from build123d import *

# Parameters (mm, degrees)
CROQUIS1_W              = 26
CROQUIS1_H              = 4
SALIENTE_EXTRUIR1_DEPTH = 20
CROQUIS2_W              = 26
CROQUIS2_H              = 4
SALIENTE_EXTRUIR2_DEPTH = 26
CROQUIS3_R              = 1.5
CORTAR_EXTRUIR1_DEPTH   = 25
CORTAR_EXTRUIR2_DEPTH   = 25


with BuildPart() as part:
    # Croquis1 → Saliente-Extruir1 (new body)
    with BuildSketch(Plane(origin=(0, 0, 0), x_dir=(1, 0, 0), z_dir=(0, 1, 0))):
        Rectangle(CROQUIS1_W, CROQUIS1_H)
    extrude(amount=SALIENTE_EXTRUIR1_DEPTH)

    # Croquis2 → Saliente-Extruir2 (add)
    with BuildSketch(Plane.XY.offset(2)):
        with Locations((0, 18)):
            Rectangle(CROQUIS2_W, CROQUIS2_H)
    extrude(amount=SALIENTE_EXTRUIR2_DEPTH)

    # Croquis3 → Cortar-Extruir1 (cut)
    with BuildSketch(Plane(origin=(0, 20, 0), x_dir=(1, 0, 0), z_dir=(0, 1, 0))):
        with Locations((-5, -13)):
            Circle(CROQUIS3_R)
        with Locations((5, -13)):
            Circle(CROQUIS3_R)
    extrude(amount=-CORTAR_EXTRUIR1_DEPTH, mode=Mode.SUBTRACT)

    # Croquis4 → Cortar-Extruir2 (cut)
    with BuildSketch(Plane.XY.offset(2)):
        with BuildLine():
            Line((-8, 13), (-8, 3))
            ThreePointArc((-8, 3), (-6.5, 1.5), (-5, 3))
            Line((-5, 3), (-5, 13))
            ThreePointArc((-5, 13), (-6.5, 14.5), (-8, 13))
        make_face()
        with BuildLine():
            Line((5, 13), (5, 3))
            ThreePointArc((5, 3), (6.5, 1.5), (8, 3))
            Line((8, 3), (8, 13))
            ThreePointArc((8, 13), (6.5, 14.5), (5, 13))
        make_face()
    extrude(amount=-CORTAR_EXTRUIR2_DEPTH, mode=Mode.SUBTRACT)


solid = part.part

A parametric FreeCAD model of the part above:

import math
import FreeCAD as App
import Part
import Sketcher
from FreeCAD import Vector
Q = App.Units.Quantity

doc = App.newDocument("Part")
body = doc.addObject("PartDesign::Body", "Body")

# Sketch on XZ plane
sketch1 = body.newObject("Sketcher::SketchObject", "Sketch")
sketch1.AttachmentSupport = (doc.getObject("XZ_Plane"), [""])
sketch1.MapMode = "FlatFace"
sketch1.addGeometry(Part.LineSegment(Vector(-13, -2, 0), Vector(-13, 2, 0)), False)
sketch1.addGeometry(Part.LineSegment(Vector(-13, 2, 0), Vector(13, 2, 0)), False)
sketch1.addGeometry(Part.LineSegment(Vector(13, 2, 0), Vector(13, -2, 0)), False)
sketch1.addGeometry(Part.LineSegment(Vector(13, -2, 0), Vector(-13, -2, 0)), False)
sketch1.addConstraint(Sketcher.Constraint("Coincident", 0, 2, 1, 1))
sketch1.addConstraint(Sketcher.Constraint("Coincident", 1, 2, 2, 1))
sketch1.addConstraint(Sketcher.Constraint("Coincident", 2, 2, 3, 1))
sketch1.addConstraint(Sketcher.Constraint("Coincident", 3, 2, 0, 1))
sketch1.addConstraint(Sketcher.Constraint("Vertical", 0))
sketch1.addConstraint(Sketcher.Constraint("Horizontal", 1))
sketch1.addConstraint(Sketcher.Constraint("Vertical", 2))
sketch1.addConstraint(Sketcher.Constraint("Horizontal", 3))
sketch1.addConstraint(Sketcher.Constraint("Symmetric", 0, 2, 2, 2, -1, 1))
sketch1.addConstraint(Sketcher.Constraint("DistanceX", 1, 1, 1, 2, Q("26 mm")))
sketch1.addConstraint(Sketcher.Constraint("DistanceY", 0, 1, 0, 2, Q("4 mm")))
pad1 = body.newObject("PartDesign::Pad", "Pad")
pad1.Profile = sketch1
pad1.Length = 20
pad1.Reversed = True

# Sketch on XY plane
sketch2 = body.newObject("Sketcher::SketchObject", "Sketch001")
sketch2.AttachmentSupport = (doc.getObject("XY_Plane"), [""])
sketch2.MapMode = "FlatFace"
sketch2.AttachmentOffset = App.Placement(Vector(0, 0, 2), App.Rotation())
sketch2.addGeometry(Part.LineSegment(Vector(-13, 20, 0), Vector(-13, 16, 0)), False)
sketch2.addGeometry(Part.LineSegment(Vector(-13, 16, 0), Vector(13, 16, 0)), False)
sketch2.addGeometry(Part.LineSegment(Vector(13, 16, 0), Vector(13, 20, 0)), False)
sketch2.addGeometry(Part.LineSegment(Vector(13, 20, 0), Vector(-13, 20, 0)), False)
sketch2.addConstraint(Sketcher.Constraint("Coincident", 0, 2, 1, 1))
sketch2.addConstraint(Sketcher.Constraint("Coincident", 1, 2, 2, 1))
sketch2.addConstraint(Sketcher.Constraint("Coincident", 2, 2, 3, 1))
sketch2.addConstraint(Sketcher.Constraint("Coincident", 3, 2, 0, 1))
sketch2.addConstraint(Sketcher.Constraint("Vertical", 0))
sketch2.addConstraint(Sketcher.Constraint("Horizontal", 1))
sketch2.addConstraint(Sketcher.Constraint("Vertical", 2))
sketch2.addConstraint(Sketcher.Constraint("Horizontal", 3))
sketch2.addConstraint(Sketcher.Constraint("DistanceX", 1, 1, 1, 2, Q("26 mm")))
sketch2.addConstraint(Sketcher.Constraint("DistanceY", 0, 2, 0, 1, Q("4 mm")))
sketch2.addConstraint(Sketcher.Constraint("DistanceX", 0, 2, -1, 1, Q("13 mm")))
sketch2.addConstraint(Sketcher.Constraint("DistanceY", -1, 1, 0, 2, Q("16 mm")))
pad2 = body.newObject("PartDesign::Pad", "Pad001")
pad2.Profile = sketch2
pad2.Length = 26

# Sketch on XZ plane
sketch3 = body.newObject("Sketcher::SketchObject", "Sketch002")
sketch3.AttachmentSupport = (doc.getObject("XZ_Plane"), [""])
sketch3.MapMode = "FlatFace"
sketch3.AttachmentOffset = App.Placement(Vector(0, 0, -20), App.Rotation())
sketch3.addGeometry(Part.Circle(Vector(-5, 13, 0), Vector(0, 0, 1), 1.5), False)
sketch3.addGeometry(Part.Circle(Vector(5, 13, 0), Vector(0, 0, 1), 1.5), False)
sketch3.addConstraint(Sketcher.Constraint("Equal", 0, 1))
sketch3.addConstraint(Sketcher.Constraint("Symmetric", 0, 3, 1, 3, -2))
sketch3.addConstraint(Sketcher.Constraint("Diameter", 0, Q("3 mm")))
sketch3.addConstraint(Sketcher.Constraint("DistanceX", 0, 3, -1, 1, Q("5 mm")))
sketch3.addConstraint(Sketcher.Constraint("DistanceY", -1, 1, 0, 3, Q("13 mm")))
pocket1 = body.newObject("PartDesign::Pocket", "Pocket")
pocket1.Profile = sketch3
pocket1.Length = 25
pocket1.Reversed = True

# Sketch on XY plane
sketch4 = body.newObject("Sketcher::SketchObject", "Sketch003")
sketch4.AttachmentSupport = (doc.getObject("XY_Plane"), [""])
sketch4.MapMode = "FlatFace"
sketch4.AttachmentOffset = App.Placement(Vector(0, 0, 2), App.Rotation())
sketch4.addGeometry(Part.LineSegment(Vector(-8, 13, 0), Vector(-8, 3, 0)), False)
sketch4.addGeometry(Part.ArcOfCircle(Part.Circle(Vector(-6.5, 3, 0), Vector(0, 0, 1), 1.5), math.radians(180), math.radians(360)), False)
sketch4.addGeometry(Part.LineSegment(Vector(-5, 3, 0), Vector(-5, 13, 0)), False)
sketch4.addGeometry(Part.ArcOfCircle(Part.Circle(Vector(-6.5, 13, 0), Vector(0, 0, 1), 1.5), math.radians(0), math.radians(180)), False)
sketch4.addGeometry(Part.LineSegment(Vector(5, 13, 0), Vector(5, 3, 0)), False)
sketch4.addGeometry(Part.ArcOfCircle(Part.Circle(Vector(6.5, 3, 0), Vector(0, 0, 1), 1.5), math.radians(180), math.radians(360)), False)
sketch4.addGeometry(Part.LineSegment(Vector(8, 3, 0), Vector(8, 13, 0)), False)
sketch4.addGeometry(Part.ArcOfCircle(Part.Circle(Vector(6.5, 13, 0), Vector(0, 0, 1), 1.5), math.radians(0), math.radians(180)), False)
sketch4.addConstraint(Sketcher.Constraint("Tangent", 0, 2, 1, 1))
sketch4.addConstraint(Sketcher.Constraint("Tangent", 1, 2, 2, 1))
sketch4.addConstraint(Sketcher.Constraint("Tangent", 2, 2, 3, 1))
sketch4.addConstraint(Sketcher.Constraint("Tangent", 3, 2, 0, 1))
sketch4.addConstraint(Sketcher.Constraint("Tangent", 4, 2, 5, 1))
sketch4.addConstraint(Sketcher.Constraint("Tangent", 5, 2, 6, 1))
sketch4.addConstraint(Sketcher.Constraint("Tangent", 6, 2, 7, 1))
sketch4.addConstraint(Sketcher.Constraint("Tangent", 7, 2, 4, 1))
sketch4.addConstraint(Sketcher.Constraint("Vertical", 0))
sketch4.addConstraint(Sketcher.Constraint("Vertical", 2))
sketch4.addConstraint(Sketcher.Constraint("Vertical", 4))
sketch4.addConstraint(Sketcher.Constraint("Vertical", 6))
sketch4.addConstraint(Sketcher.Constraint("Equal", 3, 5))
sketch4.addConstraint(Sketcher.Constraint("Symmetric", 1, 3, 5, 3, -2))
sketch4.addConstraint(Sketcher.Constraint("Horizontal", 3, 3, 7, 3))
sketch4.addConstraint(Sketcher.Constraint("Radius", 1, Q("1.5 mm")))
sketch4.addConstraint(Sketcher.Constraint("DistanceY", 0, 2, 0, 1, Q("10 mm")))
sketch4.addConstraint(Sketcher.Constraint("DistanceY", -1, 1, 1, 3, Q("3 mm")))
sketch4.addConstraint(Sketcher.Constraint("DistanceX", 0, 2, -1, 1, Q("8 mm")))
pocket2 = body.newObject("PartDesign::Pocket", "Pocket001")
pocket2.Profile = sketch4
pocket2.Length = 25

doc.recompute()
